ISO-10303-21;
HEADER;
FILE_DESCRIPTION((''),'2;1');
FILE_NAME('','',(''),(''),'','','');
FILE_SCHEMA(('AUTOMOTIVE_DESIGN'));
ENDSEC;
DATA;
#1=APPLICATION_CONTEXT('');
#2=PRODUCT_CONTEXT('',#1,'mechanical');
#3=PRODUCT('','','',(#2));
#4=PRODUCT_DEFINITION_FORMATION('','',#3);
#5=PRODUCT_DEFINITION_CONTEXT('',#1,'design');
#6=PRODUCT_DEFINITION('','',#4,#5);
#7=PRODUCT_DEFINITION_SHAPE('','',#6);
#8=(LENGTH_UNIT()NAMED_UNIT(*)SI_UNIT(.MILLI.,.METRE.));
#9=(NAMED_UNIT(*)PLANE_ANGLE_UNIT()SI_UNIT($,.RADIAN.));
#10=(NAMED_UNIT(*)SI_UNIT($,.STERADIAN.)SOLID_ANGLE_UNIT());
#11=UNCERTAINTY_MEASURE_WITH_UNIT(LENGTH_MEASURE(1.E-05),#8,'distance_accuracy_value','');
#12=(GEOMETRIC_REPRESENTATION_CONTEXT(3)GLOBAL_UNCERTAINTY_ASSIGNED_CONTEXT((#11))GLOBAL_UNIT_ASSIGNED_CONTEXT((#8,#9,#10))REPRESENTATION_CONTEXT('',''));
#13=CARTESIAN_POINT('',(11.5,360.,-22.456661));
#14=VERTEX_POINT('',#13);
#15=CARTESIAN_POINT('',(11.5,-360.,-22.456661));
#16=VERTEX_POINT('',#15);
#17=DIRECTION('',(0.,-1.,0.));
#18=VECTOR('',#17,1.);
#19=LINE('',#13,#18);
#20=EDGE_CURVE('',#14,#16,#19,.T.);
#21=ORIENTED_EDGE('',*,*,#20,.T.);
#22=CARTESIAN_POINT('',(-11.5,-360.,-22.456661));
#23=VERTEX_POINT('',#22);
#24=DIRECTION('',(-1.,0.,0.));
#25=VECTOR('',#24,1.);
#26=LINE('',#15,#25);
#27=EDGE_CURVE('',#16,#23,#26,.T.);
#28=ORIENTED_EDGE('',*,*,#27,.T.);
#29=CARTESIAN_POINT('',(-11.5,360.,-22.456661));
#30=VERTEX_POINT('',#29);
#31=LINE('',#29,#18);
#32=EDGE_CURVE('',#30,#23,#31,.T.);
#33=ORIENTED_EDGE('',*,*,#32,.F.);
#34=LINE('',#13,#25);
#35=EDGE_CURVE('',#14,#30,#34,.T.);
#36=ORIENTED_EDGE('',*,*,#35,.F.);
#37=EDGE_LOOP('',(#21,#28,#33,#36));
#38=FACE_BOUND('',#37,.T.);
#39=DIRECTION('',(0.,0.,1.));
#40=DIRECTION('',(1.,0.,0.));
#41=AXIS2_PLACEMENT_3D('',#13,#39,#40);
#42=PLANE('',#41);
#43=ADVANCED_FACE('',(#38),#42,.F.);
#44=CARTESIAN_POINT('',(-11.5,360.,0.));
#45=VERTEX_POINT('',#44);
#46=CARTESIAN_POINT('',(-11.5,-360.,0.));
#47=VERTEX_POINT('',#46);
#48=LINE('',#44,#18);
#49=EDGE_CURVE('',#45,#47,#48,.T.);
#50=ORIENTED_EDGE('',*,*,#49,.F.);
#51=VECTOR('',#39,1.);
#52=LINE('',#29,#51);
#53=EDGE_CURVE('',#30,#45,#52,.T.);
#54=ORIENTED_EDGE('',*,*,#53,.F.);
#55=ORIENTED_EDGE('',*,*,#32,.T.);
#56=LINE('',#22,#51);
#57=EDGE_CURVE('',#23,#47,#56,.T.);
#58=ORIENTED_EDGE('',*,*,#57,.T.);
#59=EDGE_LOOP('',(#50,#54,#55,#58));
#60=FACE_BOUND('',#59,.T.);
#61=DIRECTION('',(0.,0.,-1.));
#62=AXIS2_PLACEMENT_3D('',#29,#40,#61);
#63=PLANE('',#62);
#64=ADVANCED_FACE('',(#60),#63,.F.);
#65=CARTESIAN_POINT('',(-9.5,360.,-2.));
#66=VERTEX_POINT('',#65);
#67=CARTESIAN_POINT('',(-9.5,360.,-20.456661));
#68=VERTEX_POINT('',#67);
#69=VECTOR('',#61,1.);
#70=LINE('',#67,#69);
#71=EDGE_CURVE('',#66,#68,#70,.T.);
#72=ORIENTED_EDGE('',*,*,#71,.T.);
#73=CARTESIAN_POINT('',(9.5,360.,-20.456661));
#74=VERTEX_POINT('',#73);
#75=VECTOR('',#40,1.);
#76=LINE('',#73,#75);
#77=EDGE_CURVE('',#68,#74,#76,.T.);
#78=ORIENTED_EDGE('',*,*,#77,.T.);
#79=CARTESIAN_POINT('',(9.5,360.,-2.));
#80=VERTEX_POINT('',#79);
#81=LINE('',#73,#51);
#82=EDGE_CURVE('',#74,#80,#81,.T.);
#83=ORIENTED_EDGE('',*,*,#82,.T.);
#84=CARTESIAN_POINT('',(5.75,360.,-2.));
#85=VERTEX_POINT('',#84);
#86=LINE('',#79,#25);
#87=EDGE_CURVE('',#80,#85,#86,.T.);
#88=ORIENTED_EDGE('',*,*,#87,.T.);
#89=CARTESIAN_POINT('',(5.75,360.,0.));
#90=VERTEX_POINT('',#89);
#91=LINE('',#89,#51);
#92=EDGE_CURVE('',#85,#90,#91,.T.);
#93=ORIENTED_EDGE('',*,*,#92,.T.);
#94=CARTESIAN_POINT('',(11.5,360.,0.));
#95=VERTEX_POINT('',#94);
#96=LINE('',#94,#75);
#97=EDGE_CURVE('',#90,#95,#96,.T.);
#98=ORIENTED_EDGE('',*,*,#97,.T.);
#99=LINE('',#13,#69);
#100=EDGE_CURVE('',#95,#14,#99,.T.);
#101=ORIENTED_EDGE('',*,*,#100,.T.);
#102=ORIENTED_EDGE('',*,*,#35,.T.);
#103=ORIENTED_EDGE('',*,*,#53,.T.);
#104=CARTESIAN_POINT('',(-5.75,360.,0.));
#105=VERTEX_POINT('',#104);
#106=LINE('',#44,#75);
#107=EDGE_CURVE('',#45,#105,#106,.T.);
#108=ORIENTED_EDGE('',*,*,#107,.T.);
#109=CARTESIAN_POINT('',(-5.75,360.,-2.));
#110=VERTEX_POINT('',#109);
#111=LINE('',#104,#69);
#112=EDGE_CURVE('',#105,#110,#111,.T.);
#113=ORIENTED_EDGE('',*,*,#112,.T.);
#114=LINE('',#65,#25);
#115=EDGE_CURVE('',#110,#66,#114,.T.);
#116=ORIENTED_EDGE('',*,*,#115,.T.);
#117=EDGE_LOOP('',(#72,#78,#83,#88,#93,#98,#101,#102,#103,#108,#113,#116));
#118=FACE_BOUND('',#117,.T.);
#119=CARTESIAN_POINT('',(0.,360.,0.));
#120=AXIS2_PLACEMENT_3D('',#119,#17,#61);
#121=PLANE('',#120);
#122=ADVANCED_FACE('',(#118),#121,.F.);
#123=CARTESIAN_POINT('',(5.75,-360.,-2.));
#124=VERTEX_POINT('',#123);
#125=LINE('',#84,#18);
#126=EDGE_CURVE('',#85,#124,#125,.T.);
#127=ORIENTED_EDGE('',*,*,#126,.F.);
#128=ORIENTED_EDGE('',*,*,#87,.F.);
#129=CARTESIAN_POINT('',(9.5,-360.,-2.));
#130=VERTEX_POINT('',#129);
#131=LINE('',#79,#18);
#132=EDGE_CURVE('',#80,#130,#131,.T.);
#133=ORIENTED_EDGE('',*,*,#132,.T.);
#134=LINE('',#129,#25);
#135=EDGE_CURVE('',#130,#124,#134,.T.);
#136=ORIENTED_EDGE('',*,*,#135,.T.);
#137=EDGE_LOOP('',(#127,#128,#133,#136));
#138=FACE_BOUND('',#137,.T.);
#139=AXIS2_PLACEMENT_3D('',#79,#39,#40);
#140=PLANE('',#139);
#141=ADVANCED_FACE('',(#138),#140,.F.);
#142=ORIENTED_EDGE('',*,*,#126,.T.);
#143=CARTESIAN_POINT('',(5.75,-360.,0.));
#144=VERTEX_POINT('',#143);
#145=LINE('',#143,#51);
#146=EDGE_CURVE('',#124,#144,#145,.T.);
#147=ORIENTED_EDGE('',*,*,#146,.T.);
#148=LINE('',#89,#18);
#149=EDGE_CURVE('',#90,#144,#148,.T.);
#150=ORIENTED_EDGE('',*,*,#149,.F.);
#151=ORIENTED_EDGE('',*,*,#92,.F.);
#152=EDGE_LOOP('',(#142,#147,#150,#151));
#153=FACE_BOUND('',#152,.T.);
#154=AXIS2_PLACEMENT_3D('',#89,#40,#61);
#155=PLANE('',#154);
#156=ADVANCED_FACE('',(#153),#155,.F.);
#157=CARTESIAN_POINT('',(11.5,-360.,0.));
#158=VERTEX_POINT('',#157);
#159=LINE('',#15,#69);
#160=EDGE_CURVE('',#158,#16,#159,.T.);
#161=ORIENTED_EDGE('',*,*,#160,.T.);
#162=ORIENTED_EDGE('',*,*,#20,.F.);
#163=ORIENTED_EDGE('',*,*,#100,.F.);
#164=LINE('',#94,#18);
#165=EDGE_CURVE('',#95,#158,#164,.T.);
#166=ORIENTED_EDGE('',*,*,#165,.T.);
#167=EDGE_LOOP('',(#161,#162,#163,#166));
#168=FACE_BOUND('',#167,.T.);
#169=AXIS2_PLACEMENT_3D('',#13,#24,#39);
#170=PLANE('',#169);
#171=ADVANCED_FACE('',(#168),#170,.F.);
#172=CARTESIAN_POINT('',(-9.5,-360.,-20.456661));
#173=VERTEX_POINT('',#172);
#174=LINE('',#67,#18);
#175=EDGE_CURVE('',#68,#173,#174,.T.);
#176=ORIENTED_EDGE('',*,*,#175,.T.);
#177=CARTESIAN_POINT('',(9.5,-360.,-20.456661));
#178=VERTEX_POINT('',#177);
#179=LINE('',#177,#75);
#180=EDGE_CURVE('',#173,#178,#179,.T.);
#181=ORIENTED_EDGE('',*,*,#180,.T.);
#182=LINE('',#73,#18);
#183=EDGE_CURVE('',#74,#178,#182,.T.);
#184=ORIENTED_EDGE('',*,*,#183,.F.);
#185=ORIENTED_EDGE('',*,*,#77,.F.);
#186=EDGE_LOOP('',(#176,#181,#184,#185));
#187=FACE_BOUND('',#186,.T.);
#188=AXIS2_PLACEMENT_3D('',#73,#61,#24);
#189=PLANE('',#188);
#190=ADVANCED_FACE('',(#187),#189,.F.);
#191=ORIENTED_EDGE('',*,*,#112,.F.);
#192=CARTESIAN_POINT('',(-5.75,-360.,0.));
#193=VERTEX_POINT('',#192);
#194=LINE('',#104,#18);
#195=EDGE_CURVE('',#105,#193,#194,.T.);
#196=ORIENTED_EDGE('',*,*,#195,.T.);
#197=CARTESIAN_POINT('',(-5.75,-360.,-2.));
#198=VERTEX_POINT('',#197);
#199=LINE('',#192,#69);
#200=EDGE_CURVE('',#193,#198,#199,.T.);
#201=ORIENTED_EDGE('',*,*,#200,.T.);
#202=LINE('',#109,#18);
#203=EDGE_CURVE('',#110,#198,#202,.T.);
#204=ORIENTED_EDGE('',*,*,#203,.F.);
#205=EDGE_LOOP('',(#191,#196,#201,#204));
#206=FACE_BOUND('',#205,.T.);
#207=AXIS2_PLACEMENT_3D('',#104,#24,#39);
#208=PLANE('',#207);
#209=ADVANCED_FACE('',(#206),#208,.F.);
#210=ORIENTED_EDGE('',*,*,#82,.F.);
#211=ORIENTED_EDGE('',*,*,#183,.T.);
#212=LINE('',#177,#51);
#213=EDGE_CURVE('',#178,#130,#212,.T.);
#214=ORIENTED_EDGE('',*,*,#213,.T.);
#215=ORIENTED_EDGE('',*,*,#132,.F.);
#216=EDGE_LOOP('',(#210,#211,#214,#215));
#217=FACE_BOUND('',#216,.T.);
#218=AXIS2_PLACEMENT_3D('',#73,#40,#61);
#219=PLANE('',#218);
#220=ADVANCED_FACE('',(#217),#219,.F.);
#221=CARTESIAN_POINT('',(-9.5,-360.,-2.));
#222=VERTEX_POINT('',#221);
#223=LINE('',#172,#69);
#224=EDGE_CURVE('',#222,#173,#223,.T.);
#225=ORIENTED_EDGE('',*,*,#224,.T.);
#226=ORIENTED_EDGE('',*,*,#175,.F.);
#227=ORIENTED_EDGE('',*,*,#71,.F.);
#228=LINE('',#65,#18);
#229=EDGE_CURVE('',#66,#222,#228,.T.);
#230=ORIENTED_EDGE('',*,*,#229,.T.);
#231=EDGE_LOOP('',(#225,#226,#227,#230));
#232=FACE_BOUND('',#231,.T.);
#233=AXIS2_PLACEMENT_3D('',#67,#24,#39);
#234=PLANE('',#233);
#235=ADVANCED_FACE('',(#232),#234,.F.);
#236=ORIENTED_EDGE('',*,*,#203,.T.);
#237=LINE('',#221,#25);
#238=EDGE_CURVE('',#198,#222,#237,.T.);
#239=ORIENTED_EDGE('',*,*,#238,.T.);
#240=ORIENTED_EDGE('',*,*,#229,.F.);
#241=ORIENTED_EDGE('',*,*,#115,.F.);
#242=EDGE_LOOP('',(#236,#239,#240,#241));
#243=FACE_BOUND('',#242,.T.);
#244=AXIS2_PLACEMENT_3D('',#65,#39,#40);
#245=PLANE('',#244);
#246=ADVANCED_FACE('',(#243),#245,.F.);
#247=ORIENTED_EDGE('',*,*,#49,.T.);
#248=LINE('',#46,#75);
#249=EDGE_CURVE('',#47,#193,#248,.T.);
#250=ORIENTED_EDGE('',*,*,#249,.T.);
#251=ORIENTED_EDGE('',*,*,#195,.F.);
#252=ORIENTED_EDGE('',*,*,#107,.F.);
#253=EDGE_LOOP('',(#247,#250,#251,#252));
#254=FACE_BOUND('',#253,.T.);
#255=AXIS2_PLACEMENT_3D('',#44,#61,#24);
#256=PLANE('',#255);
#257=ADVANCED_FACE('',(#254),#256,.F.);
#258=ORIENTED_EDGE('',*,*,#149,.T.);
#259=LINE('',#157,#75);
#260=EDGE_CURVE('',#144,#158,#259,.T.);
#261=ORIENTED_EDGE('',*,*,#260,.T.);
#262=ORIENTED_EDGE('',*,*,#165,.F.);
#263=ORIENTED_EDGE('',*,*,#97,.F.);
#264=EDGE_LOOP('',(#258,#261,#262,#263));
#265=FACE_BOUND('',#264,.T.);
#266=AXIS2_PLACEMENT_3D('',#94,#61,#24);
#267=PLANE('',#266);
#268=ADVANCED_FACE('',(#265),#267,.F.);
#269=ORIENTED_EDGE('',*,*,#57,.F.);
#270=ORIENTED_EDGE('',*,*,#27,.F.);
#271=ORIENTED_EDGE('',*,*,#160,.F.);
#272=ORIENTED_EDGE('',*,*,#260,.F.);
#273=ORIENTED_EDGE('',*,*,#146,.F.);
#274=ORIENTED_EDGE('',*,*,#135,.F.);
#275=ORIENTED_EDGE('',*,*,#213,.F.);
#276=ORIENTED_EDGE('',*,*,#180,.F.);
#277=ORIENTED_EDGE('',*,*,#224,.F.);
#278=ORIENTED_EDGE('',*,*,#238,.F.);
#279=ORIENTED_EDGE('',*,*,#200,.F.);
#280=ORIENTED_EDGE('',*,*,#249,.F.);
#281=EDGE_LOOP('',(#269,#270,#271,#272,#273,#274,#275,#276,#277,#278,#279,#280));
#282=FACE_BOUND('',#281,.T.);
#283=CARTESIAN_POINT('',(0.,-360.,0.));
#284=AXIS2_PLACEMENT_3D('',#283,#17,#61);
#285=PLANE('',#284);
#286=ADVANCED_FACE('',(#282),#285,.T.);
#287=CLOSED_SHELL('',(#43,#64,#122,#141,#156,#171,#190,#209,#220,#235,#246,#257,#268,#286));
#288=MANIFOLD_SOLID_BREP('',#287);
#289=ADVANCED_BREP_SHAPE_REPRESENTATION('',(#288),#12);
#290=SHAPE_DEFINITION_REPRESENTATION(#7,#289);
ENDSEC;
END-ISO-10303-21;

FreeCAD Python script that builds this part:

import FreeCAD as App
import Part
import Sketcher

V = App.Vector

doc = App.newDocument("Part")
params = doc.addObject("Spreadsheet::Sheet", "Params")
for row, (alias, value) in enumerate([
    ("sketch1_width", "23 mm"),
    ("sketch1_width2", "19 mm"),
    ("sketch1_height", "2 mm"),
    ("sketch1_width3", "3.75 mm"),
    ("pad1_length", "720 mm"),
], start=1):
    params.set(f"A{row}", alias)
    params.set(f"B{row}", "=" + value)
    params.setAlias(f"B{row}", alias)

body = doc.addObject("PartDesign::Body", "Body")

# Sketch on XZ plane
sketch1 = body.newObject("Sketcher::SketchObject", "Sketch")
sketch1.AttachmentSupport = (doc.getObject("XZ_Plane"), [""])
sketch1.MapMode = "FlatFace"
sketch1.addGeometry([
    Part.LineSegment(V(9.5, -2, 0), V(5.8, -2, 0)),  # 0
    Part.LineSegment(V(5.8, -2, 0), V(5.8, 0, 0)),  # 1
    Part.LineSegment(V(5.8, 0, 0), V(11.5, 0, 0)),  # 2
    Part.LineSegment(V(11.5, 0, 0), V(11.5, -22.5, 0)),  # 3
    Part.LineSegment(V(11.5, -22.5, 0), V(-11.5, -22.5, 0)),  # 4
    Part.LineSegment(V(-11.5, -22.5, 0), V(-11.5, 0, 0)),  # 5
    Part.LineSegment(V(-11.5, 0, 0), V(-5.8, 0, 0)),  # 6
    Part.LineSegment(V(-5.8, 0, 0), V(-5.8, -2, 0)),  # 7
    Part.LineSegment(V(-5.8, -2, 0), V(-9.5, -2, 0)),  # 8
    Part.LineSegment(V(-9.5, -2, 0), V(-9.5, -20.5, 0)),  # 9
    Part.LineSegment(V(-9.5, -20.5, 0), V(9.5, -20.5, 0)),  # 10
    Part.LineSegment(V(9.5, -20.5, 0), V(9.5, -2, 0)),  # 11
], False)
sketch1.addConstraint([
    Sketcher.Constraint("Coincident", 0, 2, 1, 1),
    Sketcher.Constraint("Coincident", 1, 2, 2, 1),
    Sketcher.Constraint("Coincident", 2, 2, 3, 1),
    Sketcher.Constraint("Coincident", 3, 2, 4, 1),
    Sketcher.Constraint("Coincident", 4, 2, 5, 1),
    Sketcher.Constraint("Coincident", 5, 2, 6, 1),
    Sketcher.Constraint("Coincident", 6, 2, 7, 1),
    Sketcher.Constraint("Coincident", 7, 2, 8, 1),
    Sketcher.Constraint("Coincident", 8, 2, 9, 1),
    Sketcher.Constraint("Coincident", 9, 2, 10, 1),
    Sketcher.Constraint("Coincident", 10, 2, 11, 1),
    Sketcher.Constraint("Coincident", 11, 2, 0, 1),
    Sketcher.Constraint("Horizontal", 0),
    Sketcher.Constraint("Vertical", 1),
    Sketcher.Constraint("Horizontal", 2),
    Sketcher.Constraint("Vertical", 3),
    Sketcher.Constraint("Horizontal", 4),
    Sketcher.Constraint("Vertical", 5),
    Sketcher.Constraint("Horizontal", 6),
    Sketcher.Constraint("Vertical", 7),
    Sketcher.Constraint("Horizontal", 8),
    Sketcher.Constraint("Vertical", 9),
    Sketcher.Constraint("Horizontal", 10),
    Sketcher.Constraint("Vertical", 11),
    Sketcher.Constraint("Symmetric", 2, 2, 5, 2, -1, 1),
    Sketcher.Constraint("Symmetric", 1, 2, 6, 2, -2),
    Sketcher.Constraint("Symmetric", 8, 2, 11, 2, -2),
    Sketcher.Constraint("DistanceX", 4, 2, 4, 1, 23.0),
    Sketcher.Constraint("DistanceX", 10, 1, 10, 2, 19.0),
    Sketcher.Constraint("DistanceY", 1, 1, 1, 2, 2.0),
    Sketcher.Constraint("DistanceY", 4, 2, 9, 2, 2.0),
    Sketcher.Constraint("DistanceX", 0, 2, 0, 1, 3.75),
    Sketcher.Constraint("DistanceY", 3, 2, 3, 1, 22.456661),
])
sketch1.setExpression("Constraints[27]", "Params.sketch1_width")
sketch1.setExpression("Constraints[28]", "Params.sketch1_width2")
sketch1.setExpression("Constraints[29]", "Params.sketch1_height")
sketch1.setExpression("Constraints[31]", "Params.sketch1_width3")
pad1 = body.newObject("PartDesign::Pad", "Pad")
pad1.Profile = sketch1
pad1.setExpression("Length", "Params.pad1_length")
pad1.Midplane = True

doc.recompute()
